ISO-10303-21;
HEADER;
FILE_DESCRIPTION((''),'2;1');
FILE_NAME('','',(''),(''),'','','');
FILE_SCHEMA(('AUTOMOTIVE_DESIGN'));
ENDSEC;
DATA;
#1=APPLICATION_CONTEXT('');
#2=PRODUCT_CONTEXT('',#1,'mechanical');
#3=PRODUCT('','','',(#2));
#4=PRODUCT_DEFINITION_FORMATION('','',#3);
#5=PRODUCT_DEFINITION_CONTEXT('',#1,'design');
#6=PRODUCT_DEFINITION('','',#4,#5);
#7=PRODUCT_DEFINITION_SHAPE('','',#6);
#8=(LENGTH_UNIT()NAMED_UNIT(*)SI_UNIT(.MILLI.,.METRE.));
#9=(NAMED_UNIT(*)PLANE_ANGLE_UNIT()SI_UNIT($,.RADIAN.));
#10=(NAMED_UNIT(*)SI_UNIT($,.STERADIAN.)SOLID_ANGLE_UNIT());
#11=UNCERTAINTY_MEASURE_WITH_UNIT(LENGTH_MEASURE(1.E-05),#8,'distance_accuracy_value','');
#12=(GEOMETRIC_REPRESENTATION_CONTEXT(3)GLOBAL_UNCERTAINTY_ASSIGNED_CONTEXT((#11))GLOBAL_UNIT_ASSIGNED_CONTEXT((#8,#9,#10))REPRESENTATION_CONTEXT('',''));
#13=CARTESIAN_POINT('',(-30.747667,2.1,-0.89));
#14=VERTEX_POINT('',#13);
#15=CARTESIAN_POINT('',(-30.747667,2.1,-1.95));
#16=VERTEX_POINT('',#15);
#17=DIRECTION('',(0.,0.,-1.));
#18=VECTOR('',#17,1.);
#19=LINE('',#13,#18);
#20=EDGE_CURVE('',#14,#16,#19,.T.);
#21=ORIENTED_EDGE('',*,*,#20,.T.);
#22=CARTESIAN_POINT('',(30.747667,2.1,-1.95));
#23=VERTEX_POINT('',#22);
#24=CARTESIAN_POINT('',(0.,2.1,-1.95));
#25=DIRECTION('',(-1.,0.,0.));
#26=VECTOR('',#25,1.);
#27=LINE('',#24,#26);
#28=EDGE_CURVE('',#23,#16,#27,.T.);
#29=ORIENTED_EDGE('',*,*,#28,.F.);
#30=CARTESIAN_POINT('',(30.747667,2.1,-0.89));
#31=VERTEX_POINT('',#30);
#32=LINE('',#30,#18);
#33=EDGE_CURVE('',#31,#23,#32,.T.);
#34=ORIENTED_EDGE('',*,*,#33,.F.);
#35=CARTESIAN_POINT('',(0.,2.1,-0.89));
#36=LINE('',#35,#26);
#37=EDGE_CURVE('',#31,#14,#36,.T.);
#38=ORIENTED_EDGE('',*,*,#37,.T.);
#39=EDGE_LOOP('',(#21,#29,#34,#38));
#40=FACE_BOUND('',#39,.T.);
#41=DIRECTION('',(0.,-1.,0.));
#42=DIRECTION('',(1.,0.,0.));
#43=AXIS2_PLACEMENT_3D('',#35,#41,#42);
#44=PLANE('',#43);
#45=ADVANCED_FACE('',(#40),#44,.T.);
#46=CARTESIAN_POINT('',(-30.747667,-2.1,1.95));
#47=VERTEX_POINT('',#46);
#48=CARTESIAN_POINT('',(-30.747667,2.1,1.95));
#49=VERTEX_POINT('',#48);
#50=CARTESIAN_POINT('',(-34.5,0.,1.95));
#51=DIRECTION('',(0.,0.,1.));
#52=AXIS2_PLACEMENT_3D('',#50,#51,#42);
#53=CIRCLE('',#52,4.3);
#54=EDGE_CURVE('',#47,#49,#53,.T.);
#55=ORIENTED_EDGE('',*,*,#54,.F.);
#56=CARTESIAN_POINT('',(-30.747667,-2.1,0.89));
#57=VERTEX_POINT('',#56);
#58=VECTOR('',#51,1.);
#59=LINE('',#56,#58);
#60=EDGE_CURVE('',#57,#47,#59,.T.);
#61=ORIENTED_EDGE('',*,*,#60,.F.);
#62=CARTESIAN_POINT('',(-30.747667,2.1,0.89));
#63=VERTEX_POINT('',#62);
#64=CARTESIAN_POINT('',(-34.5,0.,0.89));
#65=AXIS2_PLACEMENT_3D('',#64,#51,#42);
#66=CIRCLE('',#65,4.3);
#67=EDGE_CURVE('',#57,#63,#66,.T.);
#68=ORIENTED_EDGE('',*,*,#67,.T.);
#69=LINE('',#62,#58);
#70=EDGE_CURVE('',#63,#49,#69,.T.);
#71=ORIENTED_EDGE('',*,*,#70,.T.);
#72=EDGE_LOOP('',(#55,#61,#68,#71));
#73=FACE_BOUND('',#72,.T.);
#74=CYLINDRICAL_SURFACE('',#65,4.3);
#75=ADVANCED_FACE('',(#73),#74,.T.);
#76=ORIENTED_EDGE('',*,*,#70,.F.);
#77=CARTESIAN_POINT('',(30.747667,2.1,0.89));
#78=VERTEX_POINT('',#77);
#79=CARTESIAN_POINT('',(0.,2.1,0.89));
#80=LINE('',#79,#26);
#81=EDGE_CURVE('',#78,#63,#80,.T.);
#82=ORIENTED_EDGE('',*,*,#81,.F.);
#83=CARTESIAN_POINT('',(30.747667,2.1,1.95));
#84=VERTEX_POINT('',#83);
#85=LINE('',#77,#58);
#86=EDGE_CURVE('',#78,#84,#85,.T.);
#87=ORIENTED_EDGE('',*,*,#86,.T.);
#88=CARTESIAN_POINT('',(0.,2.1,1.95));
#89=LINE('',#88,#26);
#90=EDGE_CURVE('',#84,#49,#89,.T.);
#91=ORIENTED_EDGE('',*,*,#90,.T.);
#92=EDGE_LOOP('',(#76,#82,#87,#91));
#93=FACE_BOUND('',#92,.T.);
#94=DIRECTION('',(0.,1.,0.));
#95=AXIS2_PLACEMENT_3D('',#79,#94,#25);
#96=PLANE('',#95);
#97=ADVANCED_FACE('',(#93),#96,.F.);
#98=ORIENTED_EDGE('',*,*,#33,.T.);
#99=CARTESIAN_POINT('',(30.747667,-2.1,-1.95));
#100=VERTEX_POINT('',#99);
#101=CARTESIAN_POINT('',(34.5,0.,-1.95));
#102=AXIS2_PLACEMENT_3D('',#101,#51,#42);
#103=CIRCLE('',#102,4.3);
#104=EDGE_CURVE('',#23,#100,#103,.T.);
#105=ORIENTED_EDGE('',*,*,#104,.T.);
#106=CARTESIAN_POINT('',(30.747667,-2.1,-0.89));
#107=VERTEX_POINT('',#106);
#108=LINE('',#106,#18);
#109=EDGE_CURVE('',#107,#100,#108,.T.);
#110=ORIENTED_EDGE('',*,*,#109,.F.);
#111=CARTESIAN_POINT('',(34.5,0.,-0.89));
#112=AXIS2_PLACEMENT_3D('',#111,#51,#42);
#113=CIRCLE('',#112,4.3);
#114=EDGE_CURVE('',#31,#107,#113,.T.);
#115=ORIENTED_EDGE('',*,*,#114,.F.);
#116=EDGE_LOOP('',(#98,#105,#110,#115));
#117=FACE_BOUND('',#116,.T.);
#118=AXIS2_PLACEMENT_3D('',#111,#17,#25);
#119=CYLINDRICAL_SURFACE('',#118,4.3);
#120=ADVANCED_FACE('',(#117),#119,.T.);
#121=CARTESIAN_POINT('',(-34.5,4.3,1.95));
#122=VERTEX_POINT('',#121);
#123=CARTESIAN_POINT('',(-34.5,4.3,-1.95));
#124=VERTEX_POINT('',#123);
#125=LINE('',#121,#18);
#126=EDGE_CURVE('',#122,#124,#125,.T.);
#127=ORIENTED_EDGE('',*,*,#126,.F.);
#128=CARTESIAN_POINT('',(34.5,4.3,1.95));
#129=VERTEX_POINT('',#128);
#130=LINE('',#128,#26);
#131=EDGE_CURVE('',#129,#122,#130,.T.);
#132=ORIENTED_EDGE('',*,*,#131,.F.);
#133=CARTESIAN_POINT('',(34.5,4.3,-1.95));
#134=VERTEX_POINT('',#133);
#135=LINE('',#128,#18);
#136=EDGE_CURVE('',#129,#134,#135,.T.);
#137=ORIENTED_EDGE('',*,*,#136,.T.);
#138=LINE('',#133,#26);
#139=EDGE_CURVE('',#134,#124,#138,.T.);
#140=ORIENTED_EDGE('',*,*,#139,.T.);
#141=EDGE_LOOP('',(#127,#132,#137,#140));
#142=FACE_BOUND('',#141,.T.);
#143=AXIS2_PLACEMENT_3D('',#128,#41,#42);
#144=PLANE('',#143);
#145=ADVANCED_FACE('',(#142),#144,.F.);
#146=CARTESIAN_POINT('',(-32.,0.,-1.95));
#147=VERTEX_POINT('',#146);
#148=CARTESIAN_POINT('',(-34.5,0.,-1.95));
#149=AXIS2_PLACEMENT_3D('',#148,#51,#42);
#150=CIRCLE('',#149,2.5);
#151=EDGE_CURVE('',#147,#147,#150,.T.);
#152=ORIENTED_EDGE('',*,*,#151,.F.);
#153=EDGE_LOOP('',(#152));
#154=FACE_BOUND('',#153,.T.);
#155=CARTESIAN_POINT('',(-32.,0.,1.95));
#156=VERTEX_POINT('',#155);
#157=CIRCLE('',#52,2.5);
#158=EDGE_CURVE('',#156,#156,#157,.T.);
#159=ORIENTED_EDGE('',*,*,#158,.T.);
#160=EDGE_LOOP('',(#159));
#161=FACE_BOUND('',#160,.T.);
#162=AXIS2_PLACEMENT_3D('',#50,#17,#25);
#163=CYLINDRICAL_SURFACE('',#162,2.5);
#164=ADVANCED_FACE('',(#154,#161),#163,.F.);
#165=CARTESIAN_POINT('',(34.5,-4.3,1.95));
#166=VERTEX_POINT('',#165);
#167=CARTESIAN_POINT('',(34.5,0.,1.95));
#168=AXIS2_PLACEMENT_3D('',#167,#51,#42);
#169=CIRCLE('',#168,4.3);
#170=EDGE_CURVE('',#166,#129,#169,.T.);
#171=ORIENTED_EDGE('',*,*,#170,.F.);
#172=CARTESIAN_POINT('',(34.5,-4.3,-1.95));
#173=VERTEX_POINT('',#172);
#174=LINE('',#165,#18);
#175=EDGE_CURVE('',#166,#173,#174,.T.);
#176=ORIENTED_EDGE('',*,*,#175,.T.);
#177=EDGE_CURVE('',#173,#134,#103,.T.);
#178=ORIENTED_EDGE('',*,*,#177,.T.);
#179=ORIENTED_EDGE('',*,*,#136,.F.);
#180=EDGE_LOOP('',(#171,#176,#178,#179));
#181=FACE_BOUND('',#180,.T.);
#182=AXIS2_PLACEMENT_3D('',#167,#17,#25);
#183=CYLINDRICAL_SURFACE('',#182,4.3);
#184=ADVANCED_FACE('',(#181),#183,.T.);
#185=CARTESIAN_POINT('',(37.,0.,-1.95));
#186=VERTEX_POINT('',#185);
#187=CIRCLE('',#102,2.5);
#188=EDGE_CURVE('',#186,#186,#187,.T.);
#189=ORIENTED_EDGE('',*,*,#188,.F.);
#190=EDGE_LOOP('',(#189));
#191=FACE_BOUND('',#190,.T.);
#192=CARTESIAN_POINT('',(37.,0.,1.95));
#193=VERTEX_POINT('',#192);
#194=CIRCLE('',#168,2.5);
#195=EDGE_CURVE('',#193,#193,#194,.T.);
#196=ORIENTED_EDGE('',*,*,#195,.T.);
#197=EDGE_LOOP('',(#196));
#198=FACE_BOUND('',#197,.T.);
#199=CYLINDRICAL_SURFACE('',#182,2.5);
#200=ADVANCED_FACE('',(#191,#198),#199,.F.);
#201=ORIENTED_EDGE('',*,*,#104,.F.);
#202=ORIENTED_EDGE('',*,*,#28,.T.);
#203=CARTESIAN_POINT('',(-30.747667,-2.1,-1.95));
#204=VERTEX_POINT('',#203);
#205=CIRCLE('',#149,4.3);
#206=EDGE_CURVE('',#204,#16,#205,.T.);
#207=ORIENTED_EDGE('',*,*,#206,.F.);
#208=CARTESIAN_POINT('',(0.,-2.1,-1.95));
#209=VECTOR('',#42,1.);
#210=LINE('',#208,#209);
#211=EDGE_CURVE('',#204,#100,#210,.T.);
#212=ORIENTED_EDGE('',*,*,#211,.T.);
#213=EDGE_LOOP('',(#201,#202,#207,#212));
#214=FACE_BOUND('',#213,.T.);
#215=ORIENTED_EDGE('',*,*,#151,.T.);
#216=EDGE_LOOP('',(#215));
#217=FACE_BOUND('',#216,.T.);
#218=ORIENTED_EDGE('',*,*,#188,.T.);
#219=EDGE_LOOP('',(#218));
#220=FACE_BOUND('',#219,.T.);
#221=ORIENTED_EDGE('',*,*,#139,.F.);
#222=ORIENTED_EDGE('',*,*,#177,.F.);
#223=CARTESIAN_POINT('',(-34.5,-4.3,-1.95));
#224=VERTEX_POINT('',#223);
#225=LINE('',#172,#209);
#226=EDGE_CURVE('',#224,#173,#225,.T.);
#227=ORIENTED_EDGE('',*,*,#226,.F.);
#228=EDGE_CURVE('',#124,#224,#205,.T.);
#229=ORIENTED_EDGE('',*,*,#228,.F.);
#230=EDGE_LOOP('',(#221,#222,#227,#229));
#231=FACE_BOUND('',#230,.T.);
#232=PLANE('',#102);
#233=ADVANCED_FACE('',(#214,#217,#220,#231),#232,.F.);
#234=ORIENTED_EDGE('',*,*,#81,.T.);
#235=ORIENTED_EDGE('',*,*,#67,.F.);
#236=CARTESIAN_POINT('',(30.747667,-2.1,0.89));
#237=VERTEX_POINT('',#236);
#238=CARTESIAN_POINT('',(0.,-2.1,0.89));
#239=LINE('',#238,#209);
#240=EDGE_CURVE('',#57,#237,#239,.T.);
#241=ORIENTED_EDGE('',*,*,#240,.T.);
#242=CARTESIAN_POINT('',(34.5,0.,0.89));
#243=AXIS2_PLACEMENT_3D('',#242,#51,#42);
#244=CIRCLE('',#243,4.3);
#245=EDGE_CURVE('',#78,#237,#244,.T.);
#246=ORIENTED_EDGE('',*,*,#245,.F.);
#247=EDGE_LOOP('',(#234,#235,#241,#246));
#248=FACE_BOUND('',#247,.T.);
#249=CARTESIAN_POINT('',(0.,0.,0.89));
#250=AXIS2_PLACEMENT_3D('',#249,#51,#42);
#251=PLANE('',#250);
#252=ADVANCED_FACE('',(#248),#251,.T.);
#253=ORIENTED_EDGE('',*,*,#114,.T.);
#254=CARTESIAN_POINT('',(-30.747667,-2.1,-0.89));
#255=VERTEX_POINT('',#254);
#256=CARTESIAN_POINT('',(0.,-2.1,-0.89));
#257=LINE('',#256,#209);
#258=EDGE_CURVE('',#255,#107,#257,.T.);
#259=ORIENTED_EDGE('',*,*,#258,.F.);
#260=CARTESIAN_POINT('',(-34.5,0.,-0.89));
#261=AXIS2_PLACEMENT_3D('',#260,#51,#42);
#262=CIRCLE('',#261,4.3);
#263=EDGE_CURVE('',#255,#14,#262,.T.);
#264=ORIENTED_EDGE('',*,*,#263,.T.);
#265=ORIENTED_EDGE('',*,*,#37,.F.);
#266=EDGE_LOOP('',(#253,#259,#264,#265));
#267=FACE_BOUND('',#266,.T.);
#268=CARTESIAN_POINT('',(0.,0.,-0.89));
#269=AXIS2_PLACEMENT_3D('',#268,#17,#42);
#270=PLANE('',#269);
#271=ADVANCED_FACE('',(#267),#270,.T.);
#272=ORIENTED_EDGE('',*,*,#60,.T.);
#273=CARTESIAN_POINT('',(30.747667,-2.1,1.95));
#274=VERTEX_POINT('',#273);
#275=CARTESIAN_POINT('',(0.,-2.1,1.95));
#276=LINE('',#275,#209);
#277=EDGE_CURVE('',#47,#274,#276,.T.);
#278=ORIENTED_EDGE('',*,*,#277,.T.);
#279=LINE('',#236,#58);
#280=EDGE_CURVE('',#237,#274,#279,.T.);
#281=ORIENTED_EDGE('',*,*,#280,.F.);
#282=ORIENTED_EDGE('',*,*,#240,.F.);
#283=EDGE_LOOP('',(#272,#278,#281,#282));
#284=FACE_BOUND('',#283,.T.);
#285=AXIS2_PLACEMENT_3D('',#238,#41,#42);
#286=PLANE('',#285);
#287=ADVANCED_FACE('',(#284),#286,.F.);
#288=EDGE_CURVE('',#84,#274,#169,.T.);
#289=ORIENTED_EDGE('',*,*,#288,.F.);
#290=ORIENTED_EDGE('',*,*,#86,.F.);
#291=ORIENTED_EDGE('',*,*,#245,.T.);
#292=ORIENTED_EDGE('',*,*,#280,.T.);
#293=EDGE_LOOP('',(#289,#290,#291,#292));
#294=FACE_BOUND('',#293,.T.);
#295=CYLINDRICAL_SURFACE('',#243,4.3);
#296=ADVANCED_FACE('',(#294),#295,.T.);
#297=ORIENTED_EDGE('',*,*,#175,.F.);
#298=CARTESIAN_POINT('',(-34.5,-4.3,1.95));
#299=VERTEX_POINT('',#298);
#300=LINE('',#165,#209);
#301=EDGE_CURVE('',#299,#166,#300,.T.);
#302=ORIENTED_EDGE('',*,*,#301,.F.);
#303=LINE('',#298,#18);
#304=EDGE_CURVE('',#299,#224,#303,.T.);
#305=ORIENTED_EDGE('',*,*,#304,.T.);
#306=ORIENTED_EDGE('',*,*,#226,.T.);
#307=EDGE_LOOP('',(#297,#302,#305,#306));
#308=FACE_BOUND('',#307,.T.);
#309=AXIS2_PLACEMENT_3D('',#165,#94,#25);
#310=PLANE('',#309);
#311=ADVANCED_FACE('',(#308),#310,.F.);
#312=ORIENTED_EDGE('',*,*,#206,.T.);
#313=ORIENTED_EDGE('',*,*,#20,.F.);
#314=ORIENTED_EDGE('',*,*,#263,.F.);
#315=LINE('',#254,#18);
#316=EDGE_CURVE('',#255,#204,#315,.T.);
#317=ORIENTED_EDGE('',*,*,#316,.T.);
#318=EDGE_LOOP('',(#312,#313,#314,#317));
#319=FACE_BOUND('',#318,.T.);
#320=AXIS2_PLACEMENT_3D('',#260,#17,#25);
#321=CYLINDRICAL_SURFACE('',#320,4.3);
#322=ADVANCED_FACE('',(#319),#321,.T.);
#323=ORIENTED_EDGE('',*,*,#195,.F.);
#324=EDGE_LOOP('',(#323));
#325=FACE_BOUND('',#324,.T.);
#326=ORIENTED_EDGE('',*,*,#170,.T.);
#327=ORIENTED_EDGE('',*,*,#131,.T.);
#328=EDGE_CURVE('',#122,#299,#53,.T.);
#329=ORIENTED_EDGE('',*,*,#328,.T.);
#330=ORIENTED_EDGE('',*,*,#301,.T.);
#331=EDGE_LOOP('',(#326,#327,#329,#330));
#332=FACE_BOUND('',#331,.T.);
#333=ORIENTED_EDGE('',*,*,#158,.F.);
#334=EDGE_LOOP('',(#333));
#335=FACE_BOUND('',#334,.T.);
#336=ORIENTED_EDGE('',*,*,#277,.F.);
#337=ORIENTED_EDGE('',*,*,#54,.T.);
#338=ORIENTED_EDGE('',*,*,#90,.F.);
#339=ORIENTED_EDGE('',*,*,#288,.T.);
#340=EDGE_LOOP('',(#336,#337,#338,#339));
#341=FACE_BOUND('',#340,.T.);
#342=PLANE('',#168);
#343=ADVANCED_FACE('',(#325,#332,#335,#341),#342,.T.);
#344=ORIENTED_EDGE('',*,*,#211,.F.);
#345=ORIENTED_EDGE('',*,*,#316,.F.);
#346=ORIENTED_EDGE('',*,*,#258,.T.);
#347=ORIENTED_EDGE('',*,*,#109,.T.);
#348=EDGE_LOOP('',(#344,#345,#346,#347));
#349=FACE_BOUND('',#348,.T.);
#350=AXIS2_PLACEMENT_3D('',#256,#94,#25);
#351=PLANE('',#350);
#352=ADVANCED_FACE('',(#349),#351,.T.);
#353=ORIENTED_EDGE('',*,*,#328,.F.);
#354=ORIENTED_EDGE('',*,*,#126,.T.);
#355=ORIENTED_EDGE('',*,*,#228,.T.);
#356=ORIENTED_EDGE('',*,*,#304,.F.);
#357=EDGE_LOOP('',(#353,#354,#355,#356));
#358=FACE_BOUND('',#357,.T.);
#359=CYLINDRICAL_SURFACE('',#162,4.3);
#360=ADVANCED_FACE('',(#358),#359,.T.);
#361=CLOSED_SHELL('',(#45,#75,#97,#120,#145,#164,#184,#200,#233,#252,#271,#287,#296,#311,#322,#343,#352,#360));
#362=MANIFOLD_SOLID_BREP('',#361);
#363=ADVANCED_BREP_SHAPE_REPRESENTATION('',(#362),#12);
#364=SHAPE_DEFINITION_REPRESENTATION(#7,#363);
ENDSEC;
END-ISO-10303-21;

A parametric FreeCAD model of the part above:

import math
import FreeCAD as App
import Part
import Sketcher
from FreeCAD import Vector

doc = App.newDocument("Part")
params = doc.addObject("Spreadsheet::Sheet", "Params")
for row, (alias, value) in enumerate([
    ("sketch1_diameter", "5 mm"),
    ("sketch1_radius", "4.3 mm"),
    ("sketch1_width", "69 mm"),
    ("pad1_length", "3.9 mm"),
    ("sketch2_radius", "4.3 mm"),
    ("pocket1_length", "1.06 mm"),
], start=1):
    params.set(f"A{row}", alias)
    params.set(f"B{row}", "=" + value)
    params.setAlias(f"B{row}", alias)

body = doc.addObject("PartDesign::Body", "Body")

# Sketch on XY plane
sketch1 = body.newObject("Sketcher::SketchObject", "Sketch")
sketch1.AttachmentSupport = (doc.getObject("XY_Plane"), [""])
sketch1.MapMode = "FlatFace"
sketch1.addGeometry([
    Part.LineSegment(Vector(-34.5, -4.3, 0), Vector(34.5, -4.3, 0)),  # 0
    Part.ArcOfCircle(Part.Circle(Vector(34.5, 0, 0), Vector(0, 0, 1), 4.3), math.radians(-90), math.radians(90)),  # 1
    Part.LineSegment(Vector(34.5, 4.3, 0), Vector(-34.5, 4.3, 0)),  # 2
    Part.ArcOfCircle(Part.Circle(Vector(-34.5, 0, 0), Vector(0, 0, 1), 4.3), math.radians(90), math.radians(270)),  # 3
    Part.Circle(Vector(34.5, 0, 0), Vector(0, 0, 1), 2.5),  # 4
    Part.Circle(Vector(-34.5, 0, 0), Vector(0, 0, 1), 2.5),  # 5
], False)
sketch1.addConstraint([
    Sketcher.Constraint("Tangent", 0, 2, 1, 1),
    Sketcher.Constraint("Tangent", 1, 2, 2, 1),
    Sketcher.Constraint("Tangent", 2, 2, 3, 1),
    Sketcher.Constraint("Tangent", 3, 2, 0, 1),
    Sketcher.Constraint("Horizontal", 0),
    Sketcher.Constraint("Horizontal", 2),
    Sketcher.Constraint("Coincident", 4, 3, 1, 3),
    Sketcher.Constraint("Coincident", 5, 3, 3, 3),
    Sketcher.Constraint("Equal", 4, 5),
    Sketcher.Constraint("Symmetric", 1, 3, 3, 3, -1, 1),
    Sketcher.Constraint("Diameter", 4, 5.0),
    Sketcher.Constraint("Radius", 1, 4.3),
    Sketcher.Constraint("DistanceX", 0, 1, 0, 2, 69.0),
])
sketch1.setExpression("Constraints[10]", "Params.sketch1_diameter")
sketch1.setExpression("Constraints[11]", "Params.sketch1_radius")
sketch1.setExpression("Constraints[12]", "Params.sketch1_width")
pad1 = body.newObject("PartDesign::Pad", "Pad")
pad1.Profile = sketch1
pad1.setExpression("Length", "Params.pad1_length")
pad1.Midplane = True

# Sketch on XY plane
sketch2 = body.newObject("Sketcher::SketchObject", "Sketch001")
sketch2.AttachmentSupport = (doc.getObject("XY_Plane"), [""])
sketch2.MapMode = "FlatFace"
sketch2.AttachmentOffset = App.Placement(Vector(0, 0, 1.95), App.Rotation())
sketch2.addGeometry([
    Part.ArcOfCircle(Part.Circle(Vector(34.5, 0, 0), Vector(0, 0, 1), 4.3), math.radians(151), math.radians(209)),  # 0
    Part.LineSegment(Vector(30.7, 2.1, 0), Vector(-30.7, 2.1, 0)),  # 1
    Part.ArcOfCircle(Part.Circle(Vector(-34.5, 0, 0), Vector(0, 0, 1), 4.3), math.radians(0), math.radians(29)),  # 2
    Part.ArcOfCircle(Part.Circle(Vector(-34.5, 0, 0), Vector(0, 0, 1), 4.3), math.radians(-29), math.radians(0)),  # 3
    Part.LineSegment(Vector(-30.7, -2.1, 0), Vector(30.7, -2.1, 0)),  # 4
], False)
sketch2.addConstraint([
    Sketcher.Constraint("Coincident", 0, 1, 1, 1),
    Sketcher.Constraint("Coincident", 1, 2, 2, 2),
    Sketcher.Constraint("Tangent", 2, 1, 3, 2),
    Sketcher.Constraint("Coincident", 3, 1, 4, 1),
    Sketcher.Constraint("Coincident", 4, 2, 0, 2),
    Sketcher.Constraint("Horizontal", 1),
    Sketcher.Constraint("Horizontal", 4),
    Sketcher.Constraint("Equal", 0, 2),
    Sketcher.Constraint("Equal", 2, 3),
    Sketcher.Constraint("Symmetric", 0, 3, 2, 3, -1, 1),
    Sketcher.Constraint("Symmetric", 1, 2, 3, 1, -1),
    Sketcher.Constraint("PointOnObject", 2, 1, -1),
    Sketcher.Constraint("Radius", 0, 4.3),
    Sketcher.Constraint("DistanceX", 2, 3, 0, 3, 69.0),
    Sketcher.Constraint("DistanceY", -1, 1, 0, 1, 2.1),
])
sketch2.setExpression("Constraints[12]", "Params.sketch2_radius")
pocket1 = body.newObject("PartDesign::Pocket", "Pocket")
pocket1.Profile = sketch2
pocket1.setExpression("Length", "Params.pocket1_length")
doc.recompute()

mirrored = body.newObject("PartDesign::Mirrored", "Mirrored")
mirrored.Originals = [pocket1]
mirrored.MirrorPlane = (doc.getObject("XY_Plane"), [""])
body.Tip = mirrored

doc.recompute()
